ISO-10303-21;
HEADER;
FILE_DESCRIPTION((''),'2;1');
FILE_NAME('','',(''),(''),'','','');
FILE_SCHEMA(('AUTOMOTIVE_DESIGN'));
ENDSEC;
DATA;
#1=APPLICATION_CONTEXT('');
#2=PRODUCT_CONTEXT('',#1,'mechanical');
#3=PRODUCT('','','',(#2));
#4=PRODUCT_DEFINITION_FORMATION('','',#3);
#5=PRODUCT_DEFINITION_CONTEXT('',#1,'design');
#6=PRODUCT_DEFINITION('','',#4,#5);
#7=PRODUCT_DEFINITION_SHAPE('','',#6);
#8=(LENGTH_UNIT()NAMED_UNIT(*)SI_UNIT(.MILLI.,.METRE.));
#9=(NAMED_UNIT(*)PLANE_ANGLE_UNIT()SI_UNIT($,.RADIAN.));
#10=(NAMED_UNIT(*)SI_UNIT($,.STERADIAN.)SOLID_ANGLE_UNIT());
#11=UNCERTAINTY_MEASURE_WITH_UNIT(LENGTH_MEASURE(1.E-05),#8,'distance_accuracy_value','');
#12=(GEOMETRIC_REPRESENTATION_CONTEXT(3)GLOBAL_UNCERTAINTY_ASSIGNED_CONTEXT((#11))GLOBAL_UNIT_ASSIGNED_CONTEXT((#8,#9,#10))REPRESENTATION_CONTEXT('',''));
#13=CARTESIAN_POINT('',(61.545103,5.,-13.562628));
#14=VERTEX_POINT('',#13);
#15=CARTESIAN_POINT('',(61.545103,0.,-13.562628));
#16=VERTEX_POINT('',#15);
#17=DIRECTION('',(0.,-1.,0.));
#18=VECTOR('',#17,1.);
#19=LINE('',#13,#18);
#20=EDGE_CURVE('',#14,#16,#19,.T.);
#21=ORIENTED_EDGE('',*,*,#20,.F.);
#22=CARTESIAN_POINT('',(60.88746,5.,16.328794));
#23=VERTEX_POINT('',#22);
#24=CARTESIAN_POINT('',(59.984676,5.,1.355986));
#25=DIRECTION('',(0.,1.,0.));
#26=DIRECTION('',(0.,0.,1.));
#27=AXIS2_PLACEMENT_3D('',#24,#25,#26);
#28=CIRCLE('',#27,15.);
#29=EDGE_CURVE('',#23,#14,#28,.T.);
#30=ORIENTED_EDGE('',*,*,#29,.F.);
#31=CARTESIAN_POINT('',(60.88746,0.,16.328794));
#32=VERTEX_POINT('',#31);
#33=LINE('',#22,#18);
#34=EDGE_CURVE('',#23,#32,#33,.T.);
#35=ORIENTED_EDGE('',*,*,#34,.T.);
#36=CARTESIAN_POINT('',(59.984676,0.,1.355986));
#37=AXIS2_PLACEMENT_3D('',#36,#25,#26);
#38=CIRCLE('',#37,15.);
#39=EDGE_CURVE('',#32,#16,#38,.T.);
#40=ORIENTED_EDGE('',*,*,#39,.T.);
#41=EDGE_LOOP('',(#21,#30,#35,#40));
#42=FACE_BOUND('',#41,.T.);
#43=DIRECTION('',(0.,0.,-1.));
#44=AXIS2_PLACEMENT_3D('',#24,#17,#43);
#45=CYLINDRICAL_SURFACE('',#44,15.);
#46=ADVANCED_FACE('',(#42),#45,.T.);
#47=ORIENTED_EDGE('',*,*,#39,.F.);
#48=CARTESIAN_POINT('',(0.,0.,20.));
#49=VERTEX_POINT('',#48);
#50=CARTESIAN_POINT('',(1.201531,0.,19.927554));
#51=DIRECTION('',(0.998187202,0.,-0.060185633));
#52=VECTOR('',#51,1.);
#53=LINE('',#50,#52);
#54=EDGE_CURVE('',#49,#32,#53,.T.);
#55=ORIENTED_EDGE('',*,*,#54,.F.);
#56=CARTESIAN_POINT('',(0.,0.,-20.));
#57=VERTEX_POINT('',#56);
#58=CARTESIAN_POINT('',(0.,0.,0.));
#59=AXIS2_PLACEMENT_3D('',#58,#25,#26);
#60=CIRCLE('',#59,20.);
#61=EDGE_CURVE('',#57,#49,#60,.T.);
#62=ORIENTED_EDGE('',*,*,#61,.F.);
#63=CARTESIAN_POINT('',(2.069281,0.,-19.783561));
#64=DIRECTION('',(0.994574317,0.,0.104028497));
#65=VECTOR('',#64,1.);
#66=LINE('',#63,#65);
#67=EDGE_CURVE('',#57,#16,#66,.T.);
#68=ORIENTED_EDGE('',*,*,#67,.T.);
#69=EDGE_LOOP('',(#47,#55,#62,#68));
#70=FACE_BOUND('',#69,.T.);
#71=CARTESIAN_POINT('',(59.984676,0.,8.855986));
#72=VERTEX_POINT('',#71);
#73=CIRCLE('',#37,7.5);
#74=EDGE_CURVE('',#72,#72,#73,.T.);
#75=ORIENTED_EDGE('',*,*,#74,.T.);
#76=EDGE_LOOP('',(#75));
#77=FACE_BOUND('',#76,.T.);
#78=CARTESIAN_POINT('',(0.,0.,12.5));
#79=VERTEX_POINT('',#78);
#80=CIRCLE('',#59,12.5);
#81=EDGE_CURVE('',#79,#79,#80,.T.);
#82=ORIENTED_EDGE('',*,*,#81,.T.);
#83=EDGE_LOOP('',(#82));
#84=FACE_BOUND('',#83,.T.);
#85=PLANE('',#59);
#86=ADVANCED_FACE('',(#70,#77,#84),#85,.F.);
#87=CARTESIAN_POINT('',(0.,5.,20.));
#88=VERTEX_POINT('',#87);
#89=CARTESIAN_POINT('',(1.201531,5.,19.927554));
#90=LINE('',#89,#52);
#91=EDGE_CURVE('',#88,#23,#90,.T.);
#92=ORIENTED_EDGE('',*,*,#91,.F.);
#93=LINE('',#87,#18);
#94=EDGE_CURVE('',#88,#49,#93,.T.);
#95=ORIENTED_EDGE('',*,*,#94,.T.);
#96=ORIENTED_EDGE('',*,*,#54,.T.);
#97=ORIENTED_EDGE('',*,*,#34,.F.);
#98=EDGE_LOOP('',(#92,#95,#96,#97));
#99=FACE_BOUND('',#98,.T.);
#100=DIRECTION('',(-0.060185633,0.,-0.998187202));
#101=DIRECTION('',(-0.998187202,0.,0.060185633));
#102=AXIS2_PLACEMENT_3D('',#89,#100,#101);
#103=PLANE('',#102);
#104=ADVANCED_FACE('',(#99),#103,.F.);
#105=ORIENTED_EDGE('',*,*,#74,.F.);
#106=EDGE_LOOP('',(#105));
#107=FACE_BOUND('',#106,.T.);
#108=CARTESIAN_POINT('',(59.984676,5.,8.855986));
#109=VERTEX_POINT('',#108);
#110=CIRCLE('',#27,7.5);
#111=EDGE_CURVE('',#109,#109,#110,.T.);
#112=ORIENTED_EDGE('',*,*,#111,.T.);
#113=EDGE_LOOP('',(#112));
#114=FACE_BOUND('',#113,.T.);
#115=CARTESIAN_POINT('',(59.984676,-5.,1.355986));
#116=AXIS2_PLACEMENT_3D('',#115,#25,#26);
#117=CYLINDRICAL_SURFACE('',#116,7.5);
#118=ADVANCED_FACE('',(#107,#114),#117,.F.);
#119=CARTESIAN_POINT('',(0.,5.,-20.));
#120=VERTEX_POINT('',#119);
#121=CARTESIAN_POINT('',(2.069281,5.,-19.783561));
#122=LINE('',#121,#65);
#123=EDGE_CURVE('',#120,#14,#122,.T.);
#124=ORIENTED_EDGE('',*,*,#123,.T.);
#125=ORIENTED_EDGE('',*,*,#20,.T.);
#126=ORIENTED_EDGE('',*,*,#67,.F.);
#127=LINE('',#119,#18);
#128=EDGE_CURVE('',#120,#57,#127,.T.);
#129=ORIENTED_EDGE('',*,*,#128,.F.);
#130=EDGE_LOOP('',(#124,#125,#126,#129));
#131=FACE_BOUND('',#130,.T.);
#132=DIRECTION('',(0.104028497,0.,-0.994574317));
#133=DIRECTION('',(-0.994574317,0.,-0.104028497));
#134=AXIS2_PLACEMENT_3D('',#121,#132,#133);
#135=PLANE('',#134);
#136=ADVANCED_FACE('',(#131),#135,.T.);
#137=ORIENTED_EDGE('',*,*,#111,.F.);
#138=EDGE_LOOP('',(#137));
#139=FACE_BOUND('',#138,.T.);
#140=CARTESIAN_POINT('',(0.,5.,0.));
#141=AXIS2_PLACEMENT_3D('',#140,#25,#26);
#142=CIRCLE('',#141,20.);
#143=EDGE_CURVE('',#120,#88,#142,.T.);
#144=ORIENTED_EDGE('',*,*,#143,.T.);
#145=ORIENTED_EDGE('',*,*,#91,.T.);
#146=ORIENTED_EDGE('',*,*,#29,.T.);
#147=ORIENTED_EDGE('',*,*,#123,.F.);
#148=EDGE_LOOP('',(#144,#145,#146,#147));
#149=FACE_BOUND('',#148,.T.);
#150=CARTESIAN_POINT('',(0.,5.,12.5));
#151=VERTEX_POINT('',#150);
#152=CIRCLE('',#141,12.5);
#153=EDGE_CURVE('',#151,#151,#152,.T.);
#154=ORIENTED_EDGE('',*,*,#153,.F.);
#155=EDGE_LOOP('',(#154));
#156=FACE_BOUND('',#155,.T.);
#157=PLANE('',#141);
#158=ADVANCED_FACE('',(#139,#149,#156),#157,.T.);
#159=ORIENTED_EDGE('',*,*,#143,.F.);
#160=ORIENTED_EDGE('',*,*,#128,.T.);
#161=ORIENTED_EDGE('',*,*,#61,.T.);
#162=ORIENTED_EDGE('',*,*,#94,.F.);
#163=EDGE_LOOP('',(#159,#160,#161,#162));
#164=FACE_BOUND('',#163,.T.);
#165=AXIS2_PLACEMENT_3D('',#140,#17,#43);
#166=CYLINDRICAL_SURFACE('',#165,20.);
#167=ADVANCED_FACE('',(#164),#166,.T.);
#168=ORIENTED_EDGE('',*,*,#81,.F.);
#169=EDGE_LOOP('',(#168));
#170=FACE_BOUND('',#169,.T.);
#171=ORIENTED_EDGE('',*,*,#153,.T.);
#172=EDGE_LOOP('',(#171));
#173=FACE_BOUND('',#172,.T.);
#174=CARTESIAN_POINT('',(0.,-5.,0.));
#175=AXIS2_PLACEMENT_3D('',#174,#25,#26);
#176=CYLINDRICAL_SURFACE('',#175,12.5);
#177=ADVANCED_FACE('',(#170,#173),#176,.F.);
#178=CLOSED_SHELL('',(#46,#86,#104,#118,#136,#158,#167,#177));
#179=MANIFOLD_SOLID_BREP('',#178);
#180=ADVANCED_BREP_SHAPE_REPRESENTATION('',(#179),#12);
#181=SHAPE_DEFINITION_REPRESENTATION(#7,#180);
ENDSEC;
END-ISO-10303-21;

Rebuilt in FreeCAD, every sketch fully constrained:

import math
import FreeCAD as App
import Part
import Sketcher

doc = App.newDocument("Part")
body = doc.addObject("PartDesign::Body", "Body")

# Sketch on XZ plane
sketch1 = body.newObject("Sketcher::SketchObject", "Sketch")
sketch1.AttachmentSupport = (doc.getObject("XZ_Plane"), [""])
sketch1.MapMode = "FlatFace"
sketch1.addGeometry(Part.LineSegment(App.Vector(61.5, -13.6, 0), App.Vector(0, -20, 0)), False)
sketch1.addGeometry(Part.ArcOfCircle(Part.Circle(App.Vector(0, 0, 0), App.Vector(0, 0, 1), 20), math.radians(90), math.radians(270)), False)
sketch1.addGeometry(Part.LineSegment(App.Vector(0, 20, 0), App.Vector(2.4, 19.9, 0)), False)
sketch1.addGeometry(Part.LineSegment(App.Vector(2.4, 19.9, 0), App.Vector(60.9, 16.3, 0)), False)
sketch1.addGeometry(Part.ArcOfCircle(Part.Circle(App.Vector(60, 1.4, 0), App.Vector(0, 0, 1), 15), math.radians(-84), math.radians(87)), False)
sketch1.addConstraint(Sketcher.Constraint("Coincident", 0, 2, 1, 2))
sketch1.addConstraint(Sketcher.Constraint("Coincident", 1, 1, 2, 1))
sketch1.addConstraint(Sketcher.Constraint("Coincident", 2, 2, 3, 1))
sketch1.addConstraint(Sketcher.Constraint("Tangent", 3, 2, 4, 2))
sketch1.addConstraint(Sketcher.Constraint("Tangent", 4, 1, 0, 1))
sketch1.addConstraint(Sketcher.Constraint("Coincident", 1, 3, -1, 1))
sketch1.addConstraint(Sketcher.Constraint("PointOnObject", 0, 2, -2))
sketch1.addConstraint(Sketcher.Constraint("PointOnObject", 1, 1, -2))
sketch1.addConstraint(Sketcher.Constraint("Parallel", 2, 3))
sketch1.addConstraint(Sketcher.Constraint("Radius", 1, 20.0))
sketch1.addConstraint(Sketcher.Constraint("Radius", 4, 15.0))
sketch1.addConstraint(Sketcher.Constraint("DistanceX", 2, 2, 3, 2, 58.484399))
sketch1.addConstraint(Sketcher.Constraint("Distance", 0, 61.880849))
sketch1.addConstraint(Sketcher.Constraint("Distance", 3, 58.590612))
pad1 = body.newObject("PartDesign::Pad", "Pad")
pad1.Profile = sketch1
pad1.Length = 5
pad1.Reversed = True

# Sketch on XZ plane
sketch2 = body.newObject("Sketcher::SketchObject", "Sketch001")
sketch2.AttachmentSupport = (doc.getObject("XZ_Plane"), [""])
sketch2.MapMode = "FlatFace"
sketch2.AttachmentOffset = App.Placement(App.Vector(0, 0, -5), App.Rotation())
sketch2.addGeometry(Part.Circle(App.Vector(0, 0, 0), App.Vector(0, 0, 1), 12), False)
sketch2.addGeometry(Part.Circle(App.Vector(60, 1, 0), App.Vector(0, 0, 1), 8), False)
sketch2.addConstraint(Sketcher.Constraint("Coincident", 0, 3, -1, 1))
sketch2.addConstraint(Sketcher.Constraint("Diameter", 0, 25.0))
sketch2.addConstraint(Sketcher.Constraint("Diameter", 1, 15.0))
sketch2.addConstraint(Sketcher.Constraint("DistanceX", -1, 1, 1, 3, 59.984676))
sketch2.addConstraint(Sketcher.Constraint("DistanceY", -1, 1, 1, 3, 1.355986))
pocket1 = body.newObject("PartDesign::Pocket", "Pocket")
pocket1.Profile = sketch2
pocket1.Length = 10
pocket1.Reversed = True

doc.recompute()
